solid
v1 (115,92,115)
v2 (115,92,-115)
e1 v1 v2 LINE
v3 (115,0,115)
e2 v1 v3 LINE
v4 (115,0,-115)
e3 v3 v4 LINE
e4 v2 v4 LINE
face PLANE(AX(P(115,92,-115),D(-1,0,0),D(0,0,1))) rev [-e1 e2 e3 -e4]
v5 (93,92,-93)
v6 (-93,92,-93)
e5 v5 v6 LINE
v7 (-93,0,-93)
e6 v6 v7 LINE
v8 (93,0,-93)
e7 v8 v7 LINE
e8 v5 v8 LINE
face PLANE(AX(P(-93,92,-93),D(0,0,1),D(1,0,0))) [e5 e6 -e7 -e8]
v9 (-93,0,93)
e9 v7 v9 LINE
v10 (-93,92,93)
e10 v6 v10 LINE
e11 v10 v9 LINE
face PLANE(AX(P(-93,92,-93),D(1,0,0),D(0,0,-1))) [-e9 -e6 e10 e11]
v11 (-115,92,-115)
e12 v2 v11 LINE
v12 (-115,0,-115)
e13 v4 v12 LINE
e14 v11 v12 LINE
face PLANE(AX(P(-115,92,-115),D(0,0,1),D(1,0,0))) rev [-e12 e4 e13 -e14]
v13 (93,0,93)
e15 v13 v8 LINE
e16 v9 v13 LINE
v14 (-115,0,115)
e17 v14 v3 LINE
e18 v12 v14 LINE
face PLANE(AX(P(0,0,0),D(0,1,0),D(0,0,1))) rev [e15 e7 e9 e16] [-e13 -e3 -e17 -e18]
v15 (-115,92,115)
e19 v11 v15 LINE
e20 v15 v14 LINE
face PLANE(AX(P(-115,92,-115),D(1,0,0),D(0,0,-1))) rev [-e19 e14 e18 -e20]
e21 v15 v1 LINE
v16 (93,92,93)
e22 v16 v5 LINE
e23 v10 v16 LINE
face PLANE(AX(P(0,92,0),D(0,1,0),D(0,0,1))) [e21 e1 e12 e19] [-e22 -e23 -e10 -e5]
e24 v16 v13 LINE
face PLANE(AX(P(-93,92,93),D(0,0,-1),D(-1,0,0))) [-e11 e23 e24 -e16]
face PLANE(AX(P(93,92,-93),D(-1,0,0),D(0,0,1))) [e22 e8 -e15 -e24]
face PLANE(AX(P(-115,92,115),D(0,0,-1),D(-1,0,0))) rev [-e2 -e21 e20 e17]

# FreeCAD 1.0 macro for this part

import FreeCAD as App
import Part
import Sketcher

V = App.Vector
Q = App.Units.Quantity


def add_polygon(sketch, points):
    """Adds a closed chain of lines whose ends are joined by coincident constraints."""
    first, n = sketch.GeometryCount, len(points)
    for a, b in zip(points, points[1:] + points[:1]):
        sketch.addGeometry(Part.LineSegment(App.Vector(*a, 0), App.Vector(*b, 0)), False)
    for i in range(n):
        sketch.addConstraint(Sketcher.Constraint("Coincident", first + i, 2, first + (i + 1) % n, 1))

doc = App.newDocument("Part")
params = doc.addObject("Spreadsheet::Sheet", "Params")
for row, (alias, value) in enumerate([
    ("sketch1_width", "230 mm"),
    ("sketch1_width2", "186 mm"),
    ("pad1_length", "92 mm"),
], start=1):
    params.set(f"A{row}", alias)
    params.set(f"B{row}", "=" + value)
    params.setAlias(f"B{row}", alias)

body = doc.addObject("PartDesign::Body", "Body")

sketch1 = doc.addObject("Sketcher::SketchObject", "Sketch")
body.addObject(sketch1)
sketch1.AttachmentSupport = (doc.XZ_Plane, [""])
sketch1.MapMode = "FlatFace"
add_polygon(sketch1, [(-115, -115), (-115, 115), (115, 115), (115, -115)])
add_polygon(sketch1, [(93, 93), (-93, 93), (-93, -93), (93, -93)])
sketch1.addConstraint([
    Sketcher.Constraint("Vertical", 0),
    Sketcher.Constraint("Horizontal", 1),
    Sketcher.Constraint("Vertical", 2),
    Sketcher.Constraint("Horizontal", 3),
    Sketcher.Constraint("Horizontal", 4),
    Sketcher.Constraint("Vertical", 5),
    Sketcher.Constraint("Horizontal", 6),
    Sketcher.Constraint("Vertical", 7),
    Sketcher.Constraint("Symmetric", 0, 2, 2, 2, -1, 1),
    Sketcher.Constraint("Symmetric", 4, 2, 6, 2, -1, 1),
    Sketcher.Constraint("Equal", 3, 0),
    Sketcher.Constraint("Equal", 6, 5),
    Sketcher.Constraint("DistanceX", 1, 1, 1, 2, Q("230 mm")),
    Sketcher.Constraint("DistanceX", 4, 2, 4, 1, Q("186 mm")),
])
sketch1.setExpression("Constraints[20]", "Params.sketch1_width")
sketch1.setExpression("Constraints[21]", "Params.sketch1_width2")
pad1 = doc.addObject("PartDesign::Pad", "Pad")
body.addObject(pad1)
pad1.Profile = sketch1
pad1.setExpression("Length", "Params.pad1_length")
pad1.Reversed = True

doc.recompute()
